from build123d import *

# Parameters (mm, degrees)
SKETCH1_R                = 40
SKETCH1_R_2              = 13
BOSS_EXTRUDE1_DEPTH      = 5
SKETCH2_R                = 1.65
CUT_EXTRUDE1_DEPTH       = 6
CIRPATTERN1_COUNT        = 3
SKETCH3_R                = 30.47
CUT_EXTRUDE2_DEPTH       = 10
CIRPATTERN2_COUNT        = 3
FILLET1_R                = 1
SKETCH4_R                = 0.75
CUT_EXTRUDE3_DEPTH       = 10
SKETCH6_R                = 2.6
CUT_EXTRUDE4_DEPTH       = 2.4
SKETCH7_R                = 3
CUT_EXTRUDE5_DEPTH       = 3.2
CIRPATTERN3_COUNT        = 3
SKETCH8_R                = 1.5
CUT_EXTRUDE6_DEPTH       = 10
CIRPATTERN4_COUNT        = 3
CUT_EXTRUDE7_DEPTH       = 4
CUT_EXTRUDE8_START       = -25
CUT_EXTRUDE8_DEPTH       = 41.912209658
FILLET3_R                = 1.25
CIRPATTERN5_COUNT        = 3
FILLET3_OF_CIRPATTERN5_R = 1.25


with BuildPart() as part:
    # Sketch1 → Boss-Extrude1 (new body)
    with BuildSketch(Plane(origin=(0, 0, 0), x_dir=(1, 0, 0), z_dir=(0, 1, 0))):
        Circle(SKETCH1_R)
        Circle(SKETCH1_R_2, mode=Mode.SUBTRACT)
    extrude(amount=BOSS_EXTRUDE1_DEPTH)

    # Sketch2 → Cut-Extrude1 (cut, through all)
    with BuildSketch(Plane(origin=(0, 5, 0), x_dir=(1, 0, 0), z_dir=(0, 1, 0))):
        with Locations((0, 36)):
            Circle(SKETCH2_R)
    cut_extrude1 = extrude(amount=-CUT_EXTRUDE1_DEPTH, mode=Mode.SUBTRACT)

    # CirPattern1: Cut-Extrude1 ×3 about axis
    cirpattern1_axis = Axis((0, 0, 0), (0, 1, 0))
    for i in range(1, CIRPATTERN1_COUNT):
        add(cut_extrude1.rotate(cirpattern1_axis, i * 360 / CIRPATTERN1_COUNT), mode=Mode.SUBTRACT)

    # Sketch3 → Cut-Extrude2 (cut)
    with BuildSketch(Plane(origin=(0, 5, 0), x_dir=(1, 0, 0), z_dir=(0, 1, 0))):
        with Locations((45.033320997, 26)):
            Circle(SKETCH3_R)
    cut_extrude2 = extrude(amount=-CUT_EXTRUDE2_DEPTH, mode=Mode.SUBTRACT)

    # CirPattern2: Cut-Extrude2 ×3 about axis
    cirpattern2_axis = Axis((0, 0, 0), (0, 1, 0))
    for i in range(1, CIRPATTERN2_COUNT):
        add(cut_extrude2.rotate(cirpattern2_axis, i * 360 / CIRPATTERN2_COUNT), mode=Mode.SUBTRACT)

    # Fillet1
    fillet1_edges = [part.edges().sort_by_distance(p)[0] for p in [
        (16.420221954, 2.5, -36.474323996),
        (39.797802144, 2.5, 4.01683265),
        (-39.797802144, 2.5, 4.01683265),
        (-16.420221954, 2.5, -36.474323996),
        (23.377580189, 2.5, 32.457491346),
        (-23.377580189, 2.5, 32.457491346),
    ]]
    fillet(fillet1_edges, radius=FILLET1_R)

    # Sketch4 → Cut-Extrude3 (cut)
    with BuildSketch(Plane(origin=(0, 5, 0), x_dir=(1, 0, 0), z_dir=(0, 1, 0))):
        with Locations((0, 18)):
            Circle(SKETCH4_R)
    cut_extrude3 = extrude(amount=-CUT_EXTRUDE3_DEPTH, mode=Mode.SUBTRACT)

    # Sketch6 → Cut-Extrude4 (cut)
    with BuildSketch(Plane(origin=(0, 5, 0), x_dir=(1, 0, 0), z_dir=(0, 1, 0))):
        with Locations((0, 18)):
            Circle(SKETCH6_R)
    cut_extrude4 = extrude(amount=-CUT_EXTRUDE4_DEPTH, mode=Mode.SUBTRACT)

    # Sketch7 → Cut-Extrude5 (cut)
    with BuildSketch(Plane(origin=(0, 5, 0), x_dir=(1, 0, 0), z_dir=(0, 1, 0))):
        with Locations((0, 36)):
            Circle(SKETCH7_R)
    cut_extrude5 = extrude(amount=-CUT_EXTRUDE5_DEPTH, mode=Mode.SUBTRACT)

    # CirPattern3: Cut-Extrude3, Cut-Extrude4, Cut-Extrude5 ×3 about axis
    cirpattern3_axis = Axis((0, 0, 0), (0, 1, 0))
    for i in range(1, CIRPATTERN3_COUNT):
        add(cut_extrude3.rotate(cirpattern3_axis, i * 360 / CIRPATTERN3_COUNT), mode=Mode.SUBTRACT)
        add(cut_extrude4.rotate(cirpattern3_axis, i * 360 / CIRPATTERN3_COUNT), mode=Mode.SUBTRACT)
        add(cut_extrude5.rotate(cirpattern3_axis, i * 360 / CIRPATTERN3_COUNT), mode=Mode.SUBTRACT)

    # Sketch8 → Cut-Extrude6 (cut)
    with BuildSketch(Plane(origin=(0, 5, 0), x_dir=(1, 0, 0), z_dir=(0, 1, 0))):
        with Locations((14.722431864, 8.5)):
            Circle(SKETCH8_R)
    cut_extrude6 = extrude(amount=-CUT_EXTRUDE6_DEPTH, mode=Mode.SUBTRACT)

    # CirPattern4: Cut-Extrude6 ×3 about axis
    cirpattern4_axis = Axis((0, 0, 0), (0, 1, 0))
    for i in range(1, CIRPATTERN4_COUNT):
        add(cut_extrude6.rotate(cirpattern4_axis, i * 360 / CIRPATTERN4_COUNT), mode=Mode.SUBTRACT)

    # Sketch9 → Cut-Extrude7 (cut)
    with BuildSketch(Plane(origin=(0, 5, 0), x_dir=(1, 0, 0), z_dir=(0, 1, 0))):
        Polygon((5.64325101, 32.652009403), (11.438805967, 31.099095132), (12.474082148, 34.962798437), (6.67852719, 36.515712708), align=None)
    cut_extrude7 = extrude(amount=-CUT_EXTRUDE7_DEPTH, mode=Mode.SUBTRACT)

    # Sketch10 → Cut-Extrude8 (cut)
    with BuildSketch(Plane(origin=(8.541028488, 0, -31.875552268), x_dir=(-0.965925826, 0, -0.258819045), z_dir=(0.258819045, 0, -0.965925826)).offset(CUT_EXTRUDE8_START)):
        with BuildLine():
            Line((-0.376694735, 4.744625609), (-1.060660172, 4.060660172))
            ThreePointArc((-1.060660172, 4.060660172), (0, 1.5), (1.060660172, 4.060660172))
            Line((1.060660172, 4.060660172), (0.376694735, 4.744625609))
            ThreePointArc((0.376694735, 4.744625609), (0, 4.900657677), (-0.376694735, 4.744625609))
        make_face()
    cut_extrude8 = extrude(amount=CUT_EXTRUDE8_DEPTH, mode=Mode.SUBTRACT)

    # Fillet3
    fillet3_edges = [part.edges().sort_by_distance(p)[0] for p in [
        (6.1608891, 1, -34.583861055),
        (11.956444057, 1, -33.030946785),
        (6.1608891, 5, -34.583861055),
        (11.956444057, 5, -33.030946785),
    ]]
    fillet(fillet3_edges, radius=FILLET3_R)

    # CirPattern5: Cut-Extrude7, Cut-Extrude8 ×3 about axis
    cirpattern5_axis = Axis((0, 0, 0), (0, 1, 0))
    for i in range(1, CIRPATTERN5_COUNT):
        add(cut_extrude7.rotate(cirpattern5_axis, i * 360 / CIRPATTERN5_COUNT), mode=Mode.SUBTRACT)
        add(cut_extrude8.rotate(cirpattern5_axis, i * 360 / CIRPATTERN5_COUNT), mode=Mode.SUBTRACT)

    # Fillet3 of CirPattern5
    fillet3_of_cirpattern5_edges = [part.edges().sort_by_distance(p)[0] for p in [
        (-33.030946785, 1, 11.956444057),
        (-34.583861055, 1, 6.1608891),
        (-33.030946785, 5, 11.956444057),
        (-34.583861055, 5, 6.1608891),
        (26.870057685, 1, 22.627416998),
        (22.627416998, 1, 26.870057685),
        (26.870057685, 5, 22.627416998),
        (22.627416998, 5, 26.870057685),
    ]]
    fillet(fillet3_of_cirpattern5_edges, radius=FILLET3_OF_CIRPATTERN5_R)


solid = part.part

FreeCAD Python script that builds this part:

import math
import FreeCAD as App
import Part
import Sketcher
from FreeCAD import Vector
Q = App.Units.Quantity


def edges_at(feature, points):
    """Names of the edges that pass closest to the given points."""
    edges = feature.Shape.Edges
    near = lambda p: min(range(len(edges)), key=lambda i: edges[i].distToShape(Part.Vertex(*p))[0])
    return sorted({f"Edge{near(p) + 1}" for p in points})


def add_polygon(sketch, points):
    """Adds a closed chain of lines whose ends are joined by coincident constraints."""
    first, n = sketch.GeometryCount, len(points)
    for a, b in zip(points, points[1:] + points[:1]):
        sketch.addGeometry(Part.LineSegment(App.Vector(*a, 0), App.Vector(*b, 0)), False)
    for i in range(n):
        sketch.addConstraint(Sketcher.Constraint("Coincident", first + i, 2, first + (i + 1) % n, 1))

doc = App.newDocument("Part")
params = doc.addObject("Spreadsheet::Sheet", "Params")
for row, (alias, value) in enumerate([
    ("sketch1_diameter", "80 mm"),
    ("sketch1_diameter2", "26 mm"),
    ("pad1_length", "5 mm"),
    ("sketch2_diameter", "3.3 mm"),
    ("sketch3_diameter", "60.94 mm"),
    ("pocket2_length", "10 mm"),
    ("fillet_radius", "1 mm"),
    ("sketch4_diameter", "1.5 mm"),
    ("pocket3_length", "10 mm"),
    ("sketch5_diameter", "5.2 mm"),
    ("pocket4_length", "2.4 mm"),
    ("sketch6_diameter", "6 mm"),
    ("pocket5_length", "3.2 mm"),
    ("sketch7_diameter", "3 mm"),
    ("pocket6_length", "10 mm"),
    ("sketch8_length", "6 mm"),
    ("sketch8_length2", "4 mm"),
    ("pocket7_length", "4 mm"),
    ("sketch9_radius", "1.5 mm"),
    ("pocket8_length", "41.91221 mm"),
    ("fillet2_radius", "1.25 mm"),
    ("fillet3_radius", "1.25 mm"),
], start=1):
    params.set(f"A{row}", alias)
    params.set(f"B{row}", "=" + value)
    params.setAlias(f"B{row}", alias)

body = doc.addObject("PartDesign::Body", "Body")

sketch1 = doc.addObject("Sketcher::SketchObject", "Sketch")
body.addObject(sketch1)
sketch1.AttachmentSupport = (doc.XZ_Plane, [""])
sketch1.MapMode = "FlatFace"
sketch1.addGeometry(Part.Circle(Vector(0, 0, 0), Vector(0, 0, 1), 40), False)
sketch1.addGeometry(Part.Circle(Vector(0, 0, 0), Vector(0, 0, 1), 13), False)
sketch1.addConstraint(Sketcher.Constraint("Coincident", 0, 3, -1, 1))
sketch1.addConstraint(Sketcher.Constraint("Coincident", 1, 3, -1, 1))
sketch1.addConstraint(Sketcher.Constraint("Diameter", 0, 80.0))
sketch1.addConstraint(Sketcher.Constraint("Diameter", 1, 26.0))
sketch1.setExpression("Constraints[2]", "Params.sketch1_diameter")
sketch1.setExpression("Constraints[3]", "Params.sketch1_diameter2")
pad1 = doc.addObject("PartDesign::Pad", "Pad")
body.addObject(pad1)
pad1.Profile = sketch1
pad1.setExpression("Length", "Params.pad1_length")
pad1.Reversed = True

sketch2 = doc.addObject("Sketcher::SketchObject", "Sketch001")
body.addObject(sketch2)
sketch2.AttachmentSupport = (doc.XZ_Plane, [""])
sketch2.MapMode = "FlatFace"
sketch2.AttachmentOffset = App.Placement(Vector(0, 0, -5), App.Rotation())
sketch2.addGeometry(Part.Circle(Vector(0, -36, 0), Vector(0, 0, 1), 1.6), False)
sketch2.addConstraint(Sketcher.Constraint("PointOnObject", 0, 3, -2))
sketch2.addConstraint(Sketcher.Constraint("Diameter", 0, 3.3))
sketch2.addConstraint(Sketcher.Constraint("DistanceY", 0, 3, -1, 1, 36.0))
sketch2.setExpression("Constraints[1]", "Params.sketch2_diameter")
pocket1 = doc.addObject("PartDesign::Pocket", "Pocket")
body.addObject(pocket1)
pocket1.Profile = sketch2
pocket1.Type = "ThroughAll"
pocket1.Reversed = True
doc.recompute()

polarpattern = doc.addObject("PartDesign::PolarPattern", "PolarPattern")
body.addObject(polarpattern)
polarpattern.Originals = [pocket1]
polarpattern.Axis = (doc.Y_Axis, [""])
polarpattern.Angle = 360
polarpattern.Occurrences = 3
body.Tip = polarpattern

sketch3 = doc.addObject("Sketcher::SketchObject", "Sketch002")
body.addObject(sketch3)
sketch3.AttachmentSupport = (doc.XZ_Plane, [""])
sketch3.MapMode = "FlatFace"
sketch3.AttachmentOffset = App.Placement(Vector(0, 0, -5), App.Rotation())
sketch3.addGeometry(Part.Circle(Vector(45, -26, 0), Vector(0, 0, 1), 30), False)
sketch3.addConstraint(Sketcher.Constraint("Diameter", 0, 60.94))
sketch3.addConstraint(Sketcher.Constraint("DistanceY", 0, 3, -1, 1, 26.0))
sketch3.addConstraint(Sketcher.Constraint("DistanceX", -1, 1, 0, 3, 45.033321))
sketch3.setExpression("Constraints[0]", "Params.sketch3_diameter")
pocket2 = doc.addObject("PartDesign::Pocket", "Pocket001")
body.addObject(pocket2)
pocket2.Profile = sketch3
pocket2.setExpression("Length", "Params.pocket2_length")
pocket2.Reversed = True
doc.recompute()

polarpattern2 = doc.addObject("PartDesign::PolarPattern", "PolarPattern001")
body.addObject(polarpattern2)
polarpattern2.Originals = [pocket2]
polarpattern2.Axis = (doc.Y_Axis, [""])
polarpattern2.Angle = 360
polarpattern2.Occurrences = 3
body.Tip = polarpattern2
doc.recompute()

fillet = doc.addObject("PartDesign::Fillet", "Fillet")
body.addObject(fillet)
fillet.Base = (polarpattern2, edges_at(polarpattern2, [
    (16.42, 2.5, -36.474),
    (39.798, 2.5, 4.017),
    (-39.798, 2.5, 4.017),
    (-16.42, 2.5, -36.474),
    (23.378, 2.5, 32.457),
    (-23.378, 2.5, 32.457),
]))
fillet.setExpression("Radius", "Params.fillet_radius")

sketch4 = doc.addObject("Sketcher::SketchObject", "Sketch003")
body.addObject(sketch4)
sketch4.AttachmentSupport = (doc.XZ_Plane, [""])
sketch4.MapMode = "FlatFace"
sketch4.AttachmentOffset = App.Placement(Vector(0, 0, -5), App.Rotation())
sketch4.addGeometry(Part.Circle(Vector(0, -18, 0), Vector(0, 0, 1), 0.8), False)
sketch4.addConstraint(Sketcher.Constraint("PointOnObject", 0, 3, -2))
sketch4.addConstraint(Sketcher.Constraint("Diameter", 0, 1.5))
sketch4.addConstraint(Sketcher.Constraint("DistanceY", 0, 3, -1, 1, 18.0))
sketch4.setExpression("Constraints[1]", "Params.sketch4_diameter")
pocket3 = doc.addObject("PartDesign::Pocket", "Pocket002")
body.addObject(pocket3)
pocket3.Profile = sketch4
pocket3.setExpression("Length", "Params.pocket3_length")
pocket3.Reversed = True

sketch5 = doc.addObject("Sketcher::SketchObject", "Sketch004")
body.addObject(sketch5)
sketch5.AttachmentSupport = (doc.XZ_Plane, [""])
sketch5.MapMode = "FlatFace"
sketch5.AttachmentOffset = App.Placement(Vector(0, 0, -5), App.Rotation())
sketch5.addGeometry(Part.Circle(Vector(0, -18, 0), Vector(0, 0, 1), 2.6), False)
sketch5.addConstraint(Sketcher.Constraint("PointOnObject", 0, 3, -2))
sketch5.addConstraint(Sketcher.Constraint("Diameter", 0, 5.2))
sketch5.addConstraint(Sketcher.Constraint("DistanceY", 0, 3, -1, 1, 18.0))
sketch5.setExpression("Constraints[1]", "Params.sketch5_diameter")
pocket4 = doc.addObject("PartDesign::Pocket", "Pocket003")
body.addObject(pocket4)
pocket4.Profile = sketch5
pocket4.setExpression("Length", "Params.pocket4_length")
pocket4.Reversed = True

sketch6 = doc.addObject("Sketcher::SketchObject", "Sketch005")
body.addObject(sketch6)
sketch6.AttachmentSupport = (doc.XZ_Plane, [""])
sketch6.MapMode = "FlatFace"
sketch6.AttachmentOffset = App.Placement(Vector(0, 0, -5), App.Rotation())
sketch6.addGeometry(Part.Circle(Vector(0, -36, 0), Vector(0, 0, 1), 3), False)
sketch6.addConstraint(Sketcher.Constraint("PointOnObject", 0, 3, -2))
sketch6.addConstraint(Sketcher.Constraint("Diameter", 0, 6.0))
sketch6.addConstraint(Sketcher.Constraint("DistanceY", 0, 3, -1, 1, 36.0))
sketch6.setExpression("Constraints[1]", "Params.sketch6_diameter")
pocket5 = doc.addObject("PartDesign::Pocket", "Pocket004")
body.addObject(pocket5)
pocket5.Profile = sketch6
pocket5.setExpression("Length", "Params.pocket5_length")
pocket5.Reversed = True
doc.recompute()

polarpattern3 = doc.addObject("PartDesign::PolarPattern", "PolarPattern002")
body.addObject(polarpattern3)
polarpattern3.Originals = [pocket3, pocket4, pocket5]
polarpattern3.Axis = (doc.Y_Axis, [""])
polarpattern3.Angle = 360
polarpattern3.Occurrences = 3
body.Tip = polarpattern3

sketch7 = doc.addObject("Sketcher::SketchObject", "Sketch006")
body.addObject(sketch7)
sketch7.AttachmentSupport = (doc.XZ_Plane, [""])
sketch7.MapMode = "FlatFace"
sketch7.AttachmentOffset = App.Placement(Vector(0, 0, -5), App.Rotation())
sketch7.addGeometry(Part.Circle(Vector(14.7, -8.5, 0), Vector(0, 0, 1), 1.5), False)
sketch7.addConstraint(Sketcher.Constraint("Diameter", 0, 3.0))
sketch7.addConstraint(Sketcher.Constraint("DistanceY", 0, 3, -1, 1, 8.5))
sketch7.addConstraint(Sketcher.Constraint("DistanceX", -1, 1, 0, 3, 14.722432))
sketch7.setExpression("Constraints[0]", "Params.sketch7_diameter")
pocket6 = doc.addObject("PartDesign::Pocket", "Pocket005")
body.addObject(pocket6)
pocket6.Profile = sketch7
pocket6.setExpression("Length", "Params.pocket6_length")
pocket6.Reversed = True
doc.recompute()

polarpattern4 = doc.addObject("PartDesign::PolarPattern", "PolarPattern003")
body.addObject(polarpattern4)
polarpattern4.Originals = [pocket6]
polarpattern4.Axis = (doc.Y_Axis, [""])
polarpattern4.Angle = 360
polarpattern4.Occurrences = 3
body.Tip = polarpattern4

sketch8 = doc.addObject("Sketcher::SketchObject", "Sketch007")
body.addObject(sketch8)
sketch8.AttachmentSupport = (doc.XZ_Plane, [""])
sketch8.MapMode = "FlatFace"
sketch8.AttachmentOffset = App.Placement(Vector(0, 0, -5), App.Rotation())
add_polygon(sketch8, [(5.6, -32.7), (11.4, -31.1), (12.5, -35), (6.7, -36.5)])
sketch8.addConstraint(Sketcher.Constraint("Perpendicular", 0, 1))
sketch8.addConstraint(Sketcher.Constraint("Perpendicular", 1, 2))
sketch8.addConstraint(Sketcher.Constraint("Perpendicular", 2, 3))
sketch8.addConstraint(Sketcher.Constraint("Angle", 0, Q("15 deg")))
sketch8.addConstraint(Sketcher.Constraint("Distance", 0, 6.0))
sketch8.addConstraint(Sketcher.Constraint("Distance", 1, 4.0))
sketch8.addConstraint(Sketcher.Constraint("DistanceY", 1, 2, -1, 1, 34.962798))
sketch8.addConstraint(Sketcher.Constraint("DistanceX", -1, 1, 3, 2, 5.643251))
sketch8.setExpression("Constraints[8]", "Params.sketch8_length")
sketch8.setExpression("Constraints[9]", "Params.sketch8_length2")
pocket7 = doc.addObject("PartDesign::Pocket", "Pocket006")
body.addObject(pocket7)
pocket7.Profile = sketch8
pocket7.setExpression("Length", "Params.pocket7_length")
pocket7.Reversed = True

sketch9 = doc.addObject("Sketcher::SketchObject", "Sketch008")
body.addObject(sketch9)
sketch9.Placement = App.Placement(Vector(2.070552, 0, -7.727407), App.Rotation(Vector(-0.965925826, 0, -0.258819045), Vector(0, 0.999999999, 0), Vector(0.258819045, 0, -0.965925826), "ZXY"))
sketch9.addGeometry(Part.LineSegment(Vector(-0.4, 4.7, 0), Vector(-1.1, 4.1, 0)), False)
sketch9.addGeometry(Part.ArcOfCircle(Part.Circle(Vector(0, 3, 0), Vector(0, 0, 1), 1.5), math.radians(135), math.radians(405)), False)
sketch9.addGeometry(Part.LineSegment(Vector(1.1, 4.1, 0), Vector(0.4, 4.7, 0)), False)
sketch9.addGeometry(Part.ArcOfCircle(Part.Circle(Vector(0, 4.4, 0), Vector(0, 0, 1), 0.5), math.radians(45), math.radians(135)), False)
sketch9.addConstraint(Sketcher.Constraint("Tangent", 0, 2, 1, 1))
sketch9.addConstraint(Sketcher.Constraint("Tangent", 1, 2, 2, 1))
sketch9.addConstraint(Sketcher.Constraint("Tangent", 2, 2, 3, 1))
sketch9.addConstraint(Sketcher.Constraint("Tangent", 3, 2, 0, 1))
sketch9.addConstraint(Sketcher.Constraint("Symmetric", 0, 2, 1, 2, -2))
sketch9.addConstraint(Sketcher.Constraint("Perpendicular", 0, 2))
sketch9.addConstraint(Sketcher.Constraint("Radius", 1, 1.5))
sketch9.addConstraint(Sketcher.Constraint("DistanceY", -1, 1, 1, 3, 3.0))
sketch9.addConstraint(Sketcher.Constraint("Radius", 3, 0.532727))
sketch9.setExpression("Constraints[6]", "Params.sketch9_radius")
pocket8 = doc.addObject("PartDesign::Pocket", "Pocket007")
body.addObject(pocket8)
pocket8.Profile = sketch9
pocket8.setExpression("Length", "Params.pocket8_length")
pocket8.Reversed = True
doc.recompute()

fillet2 = doc.addObject("PartDesign::Fillet", "Fillet001")
body.addObject(fillet2)
fillet2.Base = (pocket8, edges_at(pocket8, [
    (6.161, 1, -34.584),
    (11.956, 1, -33.031),
    (6.161, 5, -34.584),
    (11.956, 5, -33.031),
]))
fillet2.setExpression("Radius", "Params.fillet2_radius")
doc.recompute()

polarpattern5 = doc.addObject("PartDesign::PolarPattern", "PolarPattern004")
body.addObject(polarpattern5)
polarpattern5.Originals = [pocket7, pocket8]
polarpattern5.Axis = (doc.Y_Axis, [""])
polarpattern5.Angle = 360
polarpattern5.Occurrences = 3
body.Tip = polarpattern5
doc.recompute()

fillet3 = doc.addObject("PartDesign::Fillet", "Fillet002")
body.addObject(fillet3)
fillet3.Base = (polarpattern5, edges_at(polarpattern5, [
    (-33.031, 1, 11.956),
    (-34.584, 1, 6.161),
    (-33.031, 5, 11.956),
    (-34.584, 5, 6.161),
    (26.87, 1, 22.627),
    (22.627, 1, 26.87),
    (26.87, 5, 22.627),
    (22.627, 5, 26.87),
]))
fillet3.setExpression("Radius", "Params.fillet3_radius")

doc.recompute()
